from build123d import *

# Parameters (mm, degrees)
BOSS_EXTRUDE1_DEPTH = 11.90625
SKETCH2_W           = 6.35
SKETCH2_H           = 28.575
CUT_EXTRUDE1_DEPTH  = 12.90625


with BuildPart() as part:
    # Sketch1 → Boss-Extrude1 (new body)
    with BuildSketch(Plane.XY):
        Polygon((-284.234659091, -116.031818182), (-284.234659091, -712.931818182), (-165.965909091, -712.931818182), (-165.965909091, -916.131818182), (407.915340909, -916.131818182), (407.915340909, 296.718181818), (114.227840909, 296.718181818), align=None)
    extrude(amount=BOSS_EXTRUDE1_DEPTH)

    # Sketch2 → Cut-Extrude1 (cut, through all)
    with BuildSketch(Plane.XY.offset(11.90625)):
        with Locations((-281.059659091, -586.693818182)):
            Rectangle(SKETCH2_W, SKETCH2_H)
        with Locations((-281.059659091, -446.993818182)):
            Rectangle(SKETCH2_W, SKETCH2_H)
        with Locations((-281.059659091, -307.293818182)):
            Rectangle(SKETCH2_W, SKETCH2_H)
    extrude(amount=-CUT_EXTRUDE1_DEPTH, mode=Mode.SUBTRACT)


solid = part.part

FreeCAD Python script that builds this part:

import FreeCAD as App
import Part
import Sketcher

V = App.Vector
Q = App.Units.Quantity


def add_polygon(sketch, points):
    """Adds a closed chain of lines whose ends are joined by coincident constraints."""
    first, n = sketch.GeometryCount, len(points)
    for a, b in zip(points, points[1:] + points[:1]):
        sketch.addGeometry(Part.LineSegment(App.Vector(*a, 0), App.Vector(*b, 0)), False)
    for i in range(n):
        sketch.addConstraint(Sketcher.Constraint("Coincident", first + i, 2, first + (i + 1) % n, 1))

doc = App.newDocument("Part")
body = doc.addObject("PartDesign::Body", "Body")

sketch1 = doc.addObject("Sketcher::SketchObject", "Sketch")
body.addObject(sketch1)
sketch1.AttachmentSupport = (doc.XY_Plane, [""])
sketch1.MapMode = "FlatFace"
add_polygon(sketch1, [(-284, -116), (-284, -713), (-166, -713), (-166, -916), (408, -916), (408, 297), (114, 297)])
sketch1.addConstraint(Sketcher.Constraint("Vertical", 0))
sketch1.addConstraint(Sketcher.Constraint("Horizontal", 1))
sketch1.addConstraint(Sketcher.Constraint("Vertical", 2))
sketch1.addConstraint(Sketcher.Constraint("Horizontal", 3))
sketch1.addConstraint(Sketcher.Constraint("Vertical", 4))
sketch1.addConstraint(Sketcher.Constraint("Horizontal", 5))
sketch1.addConstraint(Sketcher.Constraint("DistanceY", 2, 2, 2, 1, Q("8 in")))
sketch1.addConstraint(Sketcher.Constraint("DistanceY", 0, 2, 0, 1, Q("23.5 in")))
sketch1.addConstraint(Sketcher.Constraint("DistanceY", 4, 1, 4, 2, Q("47.75 in")))
sketch1.addConstraint(Sketcher.Constraint("DistanceX", 1, 1, 1, 2, Q("4.65625 in")))
sketch1.addConstraint(Sketcher.Constraint("DistanceX", 3, 1, 3, 2, Q("22.59375 in")))
sketch1.addConstraint(Sketcher.Constraint("DistanceX", 5, 2, 5, 1, Q("11.5625 in")))
sketch1.addConstraint(Sketcher.Constraint("DistanceX", 0, 2, -1, 1, 284.234659))
sketch1.addConstraint(Sketcher.Constraint("DistanceY", 0, 2, -1, 1, 712.931818))
pad1 = doc.addObject("PartDesign::Pad", "Pad")
body.addObject(pad1)
pad1.Profile = sketch1
pad1.Length = Q("0.46875 in")

sketch2 = doc.addObject("Sketcher::SketchObject", "Sketch001")
body.addObject(sketch2)
sketch2.AttachmentSupport = (doc.XY_Plane, [""])
sketch2.MapMode = "FlatFace"
sketch2.AttachmentOffset = App.Placement(V(0, 0, 0.46875 * 25.4), App.Rotation())
add_polygon(sketch2, [(-284, -572), (-284, -601), (-278, -601), (-278, -572)])
add_polygon(sketch2, [(-284, -433), (-284, -461), (-278, -461), (-278, -433)])
add_polygon(sketch2, [(-284, -293), (-284, -322), (-278, -322), (-278, -293)])
sketch2.addConstraint(Sketcher.Constraint("Vertical", 0))
sketch2.addConstraint(Sketcher.Constraint("Horizontal", 1))
sketch2.addConstraint(Sketcher.Constraint("Vertical", 2))
sketch2.addConstraint(Sketcher.Constraint("Horizontal", 3))
sketch2.addConstraint(Sketcher.Constraint("Vertical", 4))
sketch2.addConstraint(Sketcher.Constraint("Horizontal", 5))
sketch2.addConstraint(Sketcher.Constraint("Vertical", 6))
sketch2.addConstraint(Sketcher.Constraint("Horizontal", 7))
sketch2.addConstraint(Sketcher.Constraint("Vertical", 8))
sketch2.addConstraint(Sketcher.Constraint("Horizontal", 9))
sketch2.addConstraint(Sketcher.Constraint("Vertical", 10))
sketch2.addConstraint(Sketcher.Constraint("Horizontal", 11))
sketch2.addConstraint(Sketcher.Constraint("Vertical", 3, 2, 4, 2))
sketch2.addConstraint(Sketcher.Constraint("Vertical", 2, 2, 5, 2))
sketch2.addConstraint(Sketcher.Constraint("Vertical", 7, 2, 8, 2))
sketch2.addConstraint(Sketcher.Constraint("Vertical", 6, 2, 9, 2))
sketch2.addConstraint(Sketcher.Constraint("Equal", 2, 4))
sketch2.addConstraint(Sketcher.Constraint("Equal", 6, 8))
sketch2.addConstraint(Sketcher.Constraint("DistanceX", 1, 1, 1, 2, Q("0.25 in")))
sketch2.addConstraint(Sketcher.Constraint("DistanceY", 0, 2, 4, 2, Q("5.5 in")))
sketch2.addConstraint(Sketcher.Constraint("DistanceY", 4, 2, 8, 2, Q("5.5 in")))
sketch2.addConstraint(Sketcher.Constraint("DistanceY", 0, 2, 0, 1, Q("1.125 in")))
sketch2.addConstraint(Sketcher.Constraint("DistanceX", 0, 2, -1, 1, 284.234659))
sketch2.addConstraint(Sketcher.Constraint("DistanceY", 0, 2, -1, 1, 600.981318))
pocket1 = doc.addObject("PartDesign::Pocket", "Pocket")
body.addObject(pocket1)
pocket1.Profile = sketch2
pocket1.Type = "ThroughAll"

doc.recompute()
